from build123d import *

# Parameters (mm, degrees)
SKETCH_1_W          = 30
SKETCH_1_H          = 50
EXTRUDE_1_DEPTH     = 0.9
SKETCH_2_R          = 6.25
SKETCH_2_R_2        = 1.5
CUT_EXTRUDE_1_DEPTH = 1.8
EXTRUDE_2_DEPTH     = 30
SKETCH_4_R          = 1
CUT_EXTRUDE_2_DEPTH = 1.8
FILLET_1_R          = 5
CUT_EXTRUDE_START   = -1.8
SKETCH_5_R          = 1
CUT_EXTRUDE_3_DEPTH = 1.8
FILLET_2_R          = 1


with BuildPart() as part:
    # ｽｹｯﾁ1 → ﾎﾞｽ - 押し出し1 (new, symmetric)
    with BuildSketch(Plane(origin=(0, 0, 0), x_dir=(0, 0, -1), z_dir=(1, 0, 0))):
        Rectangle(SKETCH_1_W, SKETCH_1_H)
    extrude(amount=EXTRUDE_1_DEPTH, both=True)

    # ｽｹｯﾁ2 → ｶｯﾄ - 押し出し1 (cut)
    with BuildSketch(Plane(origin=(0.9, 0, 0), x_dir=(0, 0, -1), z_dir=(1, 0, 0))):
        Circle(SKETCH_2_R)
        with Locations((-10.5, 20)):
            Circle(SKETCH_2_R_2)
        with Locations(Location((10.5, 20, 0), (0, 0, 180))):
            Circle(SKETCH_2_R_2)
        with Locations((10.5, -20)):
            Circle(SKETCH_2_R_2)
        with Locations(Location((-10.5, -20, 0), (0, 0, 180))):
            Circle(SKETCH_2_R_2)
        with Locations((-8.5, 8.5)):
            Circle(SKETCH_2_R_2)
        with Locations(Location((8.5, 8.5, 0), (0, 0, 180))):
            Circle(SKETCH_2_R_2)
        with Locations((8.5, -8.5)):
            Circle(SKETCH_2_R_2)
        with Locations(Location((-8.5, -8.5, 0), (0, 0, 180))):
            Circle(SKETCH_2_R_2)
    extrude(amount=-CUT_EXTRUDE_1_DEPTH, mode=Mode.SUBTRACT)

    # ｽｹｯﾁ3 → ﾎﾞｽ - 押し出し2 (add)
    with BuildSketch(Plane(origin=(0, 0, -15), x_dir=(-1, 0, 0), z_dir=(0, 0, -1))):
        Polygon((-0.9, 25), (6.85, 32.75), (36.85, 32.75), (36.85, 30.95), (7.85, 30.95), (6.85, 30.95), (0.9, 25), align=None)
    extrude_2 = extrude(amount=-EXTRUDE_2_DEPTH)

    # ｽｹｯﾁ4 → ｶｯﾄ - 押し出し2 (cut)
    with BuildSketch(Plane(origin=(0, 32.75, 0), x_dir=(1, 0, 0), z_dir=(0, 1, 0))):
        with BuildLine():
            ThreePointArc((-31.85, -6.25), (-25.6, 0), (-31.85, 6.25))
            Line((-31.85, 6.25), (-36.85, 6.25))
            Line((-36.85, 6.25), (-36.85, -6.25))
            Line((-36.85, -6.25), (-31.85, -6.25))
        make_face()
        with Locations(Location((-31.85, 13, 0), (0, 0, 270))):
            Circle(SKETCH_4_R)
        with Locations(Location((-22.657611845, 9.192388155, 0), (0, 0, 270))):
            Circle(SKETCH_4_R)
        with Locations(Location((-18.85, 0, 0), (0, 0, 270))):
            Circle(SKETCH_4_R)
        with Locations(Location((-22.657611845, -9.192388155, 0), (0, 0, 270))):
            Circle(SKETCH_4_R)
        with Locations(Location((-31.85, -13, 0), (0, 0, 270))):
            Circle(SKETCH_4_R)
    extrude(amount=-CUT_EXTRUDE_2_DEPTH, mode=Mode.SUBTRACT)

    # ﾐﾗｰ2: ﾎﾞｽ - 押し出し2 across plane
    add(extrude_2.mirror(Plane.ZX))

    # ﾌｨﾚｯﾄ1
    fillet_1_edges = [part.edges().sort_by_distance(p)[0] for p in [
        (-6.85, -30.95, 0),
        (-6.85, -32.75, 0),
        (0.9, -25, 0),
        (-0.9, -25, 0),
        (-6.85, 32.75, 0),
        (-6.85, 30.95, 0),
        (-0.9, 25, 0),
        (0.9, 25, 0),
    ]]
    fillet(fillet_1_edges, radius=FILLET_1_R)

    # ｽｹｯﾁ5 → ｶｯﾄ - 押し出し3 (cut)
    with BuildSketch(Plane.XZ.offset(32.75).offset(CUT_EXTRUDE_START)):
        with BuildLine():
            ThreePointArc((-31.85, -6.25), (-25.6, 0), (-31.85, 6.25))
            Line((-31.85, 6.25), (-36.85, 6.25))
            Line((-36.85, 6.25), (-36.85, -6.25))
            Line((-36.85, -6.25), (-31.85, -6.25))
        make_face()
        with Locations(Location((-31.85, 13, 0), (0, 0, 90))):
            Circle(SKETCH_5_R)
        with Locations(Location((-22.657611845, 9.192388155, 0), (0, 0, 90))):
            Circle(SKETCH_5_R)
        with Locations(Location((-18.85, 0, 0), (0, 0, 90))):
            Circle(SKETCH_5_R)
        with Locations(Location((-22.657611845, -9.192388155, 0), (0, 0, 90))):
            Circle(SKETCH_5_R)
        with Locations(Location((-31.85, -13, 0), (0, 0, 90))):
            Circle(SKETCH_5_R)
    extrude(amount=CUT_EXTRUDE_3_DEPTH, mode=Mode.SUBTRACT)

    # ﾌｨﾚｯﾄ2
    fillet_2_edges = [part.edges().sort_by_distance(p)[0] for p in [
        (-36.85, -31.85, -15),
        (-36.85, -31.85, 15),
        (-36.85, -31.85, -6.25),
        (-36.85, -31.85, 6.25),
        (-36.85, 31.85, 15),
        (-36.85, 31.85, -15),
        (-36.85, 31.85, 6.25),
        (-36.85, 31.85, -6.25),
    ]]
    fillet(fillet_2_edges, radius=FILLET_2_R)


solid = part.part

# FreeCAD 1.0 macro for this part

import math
import FreeCAD as App
import Part
import Sketcher


def edges_at(feature, points):
    """Names of the edges that pass closest to the given points."""
    edges = feature.Shape.Edges
    near = lambda p: min(range(len(edges)), key=lambda i: edges[i].distToShape(Part.Vertex(*p))[0])
    return sorted({f"Edge{near(p) + 1}" for p in points})

doc = App.newDocument("Part")
body = doc.addObject("PartDesign::Body", "Body")

# Sketch on YZ plane
sketch1 = body.newObject("Sketcher::SketchObject", "Sketch")
sketch1.AttachmentSupport = (doc.getObject("YZ_Plane"), [""])
sketch1.MapMode = "FlatFace"
sketch1.addGeometry([
    Part.LineSegment(App.Vector(25, 15, 0), App.Vector(-25, 15, 0)),
    Part.LineSegment(App.Vector(-25, 15, 0), App.Vector(-25, -15, 0)),
    Part.LineSegment(App.Vector(-25, -15, 0), App.Vector(25, -15, 0)),
    Part.LineSegment(App.Vector(25, -15, 0), App.Vector(25, 15, 0)),
], False)
sketch1.addConstraint([
    Sketcher.Constraint("Coincident", 0, 2, 1, 1),
    Sketcher.Constraint("Coincident", 1, 2, 2, 1),
    Sketcher.Constraint("Coincident", 2, 2, 3, 1),
    Sketcher.Constraint("Coincident", 3, 2, 0, 1),
    Sketcher.Constraint("Horizontal", 0),
    Sketcher.Constraint("Vertical", 1),
    Sketcher.Constraint("Horizontal", 2),
    Sketcher.Constraint("Vertical", 3),
    Sketcher.Constraint("Symmetric", 0, 2, 2, 2, -1, 1),
    Sketcher.Constraint("DistanceX", 0, 2, 0, 1, 50.0),
    Sketcher.Constraint("DistanceY", 1, 2, 1, 1, 30.0),
])
pad1 = body.newObject("PartDesign::Pad", "Pad")
pad1.Profile = sketch1
pad1.Length = 1.8
pad1.Midplane = True

# Sketch on YZ plane
sketch2 = body.newObject("Sketcher::SketchObject", "Sketch001")
sketch2.AttachmentSupport = (doc.getObject("YZ_Plane"), [""])
sketch2.MapMode = "FlatFace"
sketch2.AttachmentOffset = App.Placement(App.Vector(0, 0, 0.9), App.Rotation())
sketch2.addGeometry([
    Part.Circle(App.Vector(0, 0, 0), App.Vector(0, 0, 1), 6.2),  # 0
    Part.Circle(App.Vector(20, 10.5, 0), App.Vector(0, 0, 1), 1.5),  # 1
    Part.Circle(App.Vector(20, -10.5, 0), App.Vector(0, 0, 1), 1.5),  # 2
    Part.Circle(App.Vector(-20, -10.5, 0), App.Vector(0, 0, 1), 1.5),  # 3
    Part.Circle(App.Vector(-20, 10.5, 0), App.Vector(0, 0, 1), 1.5),  # 4
    Part.Circle(App.Vector(8.5, 8.5, 0), App.Vector(0, 0, 1), 1.5),  # 5
    Part.Circle(App.Vector(8.5, -8.5, 0), App.Vector(0, 0, 1), 1.5),  # 6
    Part.Circle(App.Vector(-8.5, -8.5, 0), App.Vector(0, 0, 1), 1.5),  # 7
    Part.Circle(App.Vector(-8.5, 8.5, 0), App.Vector(0, 0, 1), 1.5),  # 8
], False)
sketch2.addConstraint([
    Sketcher.Constraint("Coincident", 0, 3, -1, 1),
    Sketcher.Constraint("Equal", 1, 2),
    Sketcher.Constraint("Equal", 2, 3),
    Sketcher.Constraint("Equal", 3, 4),
    Sketcher.Constraint("Equal", 4, 5),
    Sketcher.Constraint("Equal", 5, 6),
    Sketcher.Constraint("Equal", 6, 7),
    Sketcher.Constraint("Equal", 7, 8),
    Sketcher.Constraint("Symmetric", 1, 3, 3, 3, -1, 1),
    Sketcher.Constraint("Symmetric", 2, 3, 4, 3, -1, 1),
    Sketcher.Constraint("Symmetric", 5, 3, 7, 3, -1, 1),
    Sketcher.Constraint("Symmetric", 6, 3, 8, 3, -1, 1),
    Sketcher.Constraint("Symmetric", 2, 3, 3, 3, -2),
    Sketcher.Constraint("Symmetric", 6, 3, 7, 3, -2),
    Sketcher.Constraint("Diameter", 1, 3.0),
    Sketcher.Constraint("Diameter", 0, 12.5),
    Sketcher.Constraint("DistanceX", -1, 1, 1, 3, 20.0),
    Sketcher.Constraint("DistanceY", 2, 3, 1, 3, 21.0),
    Sketcher.Constraint("DistanceY", 5, 3, 1, 3, 2.0),
    Sketcher.Constraint("DistanceX", 7, 3, 6, 3, 17.0),
])
pocket1 = body.newObject("PartDesign::Pocket", "Pocket")
pocket1.Profile = sketch2
pocket1.Length = 1.8

# Sketch on XY plane
sketch3 = body.newObject("Sketcher::SketchObject", "Sketch002")
sketch3.AttachmentSupport = (doc.getObject("XY_Plane"), [""])
sketch3.MapMode = "FlatFace"
sketch3.AttachmentOffset = App.Placement(App.Vector(0, 0, -15), App.Rotation())
sketch3.addGeometry([
    Part.LineSegment(App.Vector(-6.8, 32.8, 0), App.Vector(0.9, 25, 0)),  # 0
    Part.LineSegment(App.Vector(0.9, 25, 0), App.Vector(-0.9, 25, 0)),  # 1
    Part.LineSegment(App.Vector(-0.9, 25, 0), App.Vector(-6.8, 30.9, 0)),  # 2
    Part.LineSegment(App.Vector(-6.8, 30.9, 0), App.Vector(-36.9, 30.9, 0)),  # 3
    Part.LineSegment(App.Vector(-36.9, 30.9, 0), App.Vector(-36.9, 32.8, 0)),  # 4
    Part.LineSegment(App.Vector(-36.9, 32.8, 0), App.Vector(-6.8, 32.8, 0)),  # 5
], False)
sketch3.addConstraint([
    Sketcher.Constraint("Coincident", 0, 2, 1, 1),
    Sketcher.Constraint("Coincident", 1, 2, 2, 1),
    Sketcher.Constraint("Coincident", 2, 2, 3, 1),
    Sketcher.Constraint("Coincident", 3, 2, 4, 1),
    Sketcher.Constraint("Coincident", 4, 2, 5, 1),
    Sketcher.Constraint("Coincident", 5, 2, 0, 1),
    Sketcher.Constraint("Horizontal", 1),
    Sketcher.Constraint("Horizontal", 3),
    Sketcher.Constraint("Vertical", 4),
    Sketcher.Constraint("Horizontal", 5),
    Sketcher.Constraint("Parallel", 0, 2),
    Sketcher.Constraint("Vertical", 2, 2, 5, 2),
    Sketcher.Constraint("Equal", 1, 4),
    Sketcher.Constraint("DistanceX", 3, 2, 3, 1, 30.0),
    Sketcher.Constraint("DistanceX", 1, 2, 1, 1, 1.8),
    Sketcher.Constraint("DistanceY", -1, 1, 0, 2, 25.0),
    Sketcher.Constraint("DistanceX", -1, 1, 0, 2, 0.9),
    Sketcher.Constraint("DistanceX", 2, 2, -1, 1, 6.85),
])
pad2 = body.newObject("PartDesign::Pad", "Pad001")
pad2.Profile = sketch3
pad2.Length = 30

# Sketch on XZ plane
sketch4 = body.newObject("Sketcher::SketchObject", "Sketch003")
sketch4.AttachmentSupport = (doc.getObject("XZ_Plane"), [""])
sketch4.MapMode = "FlatFace"
sketch4.AttachmentOffset = App.Placement(App.Vector(0, 0, -32.75), App.Rotation())
sketch4.addGeometry([
    Part.ArcOfCircle(Part.Circle(App.Vector(-31.9, 0, 0), App.Vector(0, 0, 1), 6.2), math.radians(-90), math.radians(90)),  # 0
    Part.LineSegment(App.Vector(-31.9, -6.2, 0), App.Vector(-36.9, -6.2, 0)),  # 1
    Part.LineSegment(App.Vector(-36.9, -6.2, 0), App.Vector(-36.9, 6.2, 0)),  # 2
    Part.LineSegment(App.Vector(-36.9, 6.2, 0), App.Vector(-31.9, 6.2, 0)),  # 3
    Part.Circle(App.Vector(-31.9, -13, 0), App.Vector(0, 0, 1), 1),  # 4
    Part.Circle(App.Vector(-22.7, -9.2, 0), App.Vector(0, 0, 1), 1),  # 5
    Part.Circle(App.Vector(-18.9, 0, 0), App.Vector(0, 0, 1), 1),  # 6
    Part.Circle(App.Vector(-22.7, 9.2, 0), App.Vector(0, 0, 1), 1),  # 7
    Part.Circle(App.Vector(-31.9, 13, 0), App.Vector(0, 0, 1), 1),  # 8
], False)
sketch4.addConstraint([
    Sketcher.Constraint("Tangent", 0, 1, 1, 1),
    Sketcher.Constraint("Coincident", 1, 2, 2, 1),
    Sketcher.Constraint("Coincident", 2, 2, 3, 1),
    Sketcher.Constraint("Tangent", 3, 2, 0, 2),
    Sketcher.Constraint("Horizontal", 1),
    Sketcher.Constraint("Vertical", 2),
    Sketcher.Constraint("Horizontal", 3),
    Sketcher.Constraint("Equal", 4, 5),
    Sketcher.Constraint("Equal", 5, 6),
    Sketcher.Constraint("Equal", 6, 7),
    Sketcher.Constraint("Equal", 7, 8),
    Sketcher.Constraint("Symmetric", 5, 3, 7, 3, -1),
    Sketcher.Constraint("Symmetric", 4, 3, 8, 3, -1),
    Sketcher.Constraint("PointOnObject", 0, 3, -1),
    Sketcher.Constraint("PointOnObject", 6, 3, -1),
    Sketcher.Constraint("Vertical", 0, 3, 4, 3),
    Sketcher.Constraint("Diameter", 4, 2.0),
    Sketcher.Constraint("DistanceX", 1, 2, 1, 1, 5.0),
    Sketcher.Constraint("Radius", 0, 6.25),
    Sketcher.Constraint("DistanceY", 4, 3, -1, 1, 13.0),
    Sketcher.Constraint("DistanceX", 0, 3, 6, 3, 13.0),
    Sketcher.Constraint("DistanceX", 0, 3, -1, 1, 31.85),
    Sketcher.Constraint("DistanceX", 5, 3, -1, 1, 22.657612),
    Sketcher.Constraint("DistanceY", 5, 3, -1, 1, 9.192388),
])
pocket2 = body.newObject("PartDesign::Pocket", "Pocket001")
pocket2.Profile = sketch4
pocket2.Length = 1.8
pocket2.Reversed = True
doc.recompute()

mirrored = body.newObject("PartDesign::Mirrored", "Mirrored")
mirrored.Originals = [pad2]
mirrored.MirrorPlane = (doc.getObject("XZ_Plane"), [""])
body.Tip = mirrored
doc.recompute()

fillet = body.newObject("PartDesign::Fillet", "Fillet")
fillet.Base = (mirrored, edges_at(mirrored, [
    (-6.85, -30.95, 0),
    (-6.85, -32.75, 0),
    (0.9, -25, 0),
    (-0.9, -25, 0),
    (-6.85, 32.75, 0),
    (-6.85, 30.95, 0),
    (-0.9, 25, 0),
    (0.9, 25, 0),
]))
fillet.Radius = 5

# Sketch on XZ plane
sketch5 = body.newObject("Sketcher::SketchObject", "Sketch004")
sketch5.AttachmentSupport = (doc.getObject("XZ_Plane"), [""])
sketch5.MapMode = "FlatFace"
sketch5.AttachmentOffset = App.Placement(App.Vector(0, 0, 30.95), App.Rotation())
sketch5.addGeometry([
    Part.ArcOfCircle(Part.Circle(App.Vector(-31.9, 0, 0), App.Vector(0, 0, 1), 6.2), math.radians(-90), math.radians(90)),  # 0
    Part.LineSegment(App.Vector(-31.9, 6.2, 0), App.Vector(-36.9, 6.2, 0)),  # 1
    Part.LineSegment(App.Vector(-36.9, 6.2, 0), App.Vector(-36.9, -6.2, 0)),  # 2
    Part.LineSegment(App.Vector(-36.9, -6.2, 0), App.Vector(-31.9, -6.2, 0)),  # 3
    Part.Circle(App.Vector(-31.9, 13, 0), App.Vector(0, 0, 1), 1),  # 4
    Part.Circle(App.Vector(-22.7, 9.2, 0), App.Vector(0, 0, 1), 1),  # 5
    Part.Circle(App.Vector(-18.9, 0, 0), App.Vector(0, 0, 1), 1),  # 6
    Part.Circle(App.Vector(-22.7, -9.2, 0), App.Vector(0, 0, 1), 1),  # 7
    Part.Circle(App.Vector(-31.9, -13, 0), App.Vector(0, 0, 1), 1),  # 8
], False)
sketch5.addConstraint([
    Sketcher.Constraint("Tangent", 0, 2, 1, 1),
    Sketcher.Constraint("Coincident", 1, 2, 2, 1),
    Sketcher.Constraint("Coincident", 2, 2, 3, 1),
    Sketcher.Constraint("Tangent", 3, 2, 0, 1),
    Sketcher.Constraint("Horizontal", 1),
    Sketcher.Constraint("Vertical", 2),
    Sketcher.Constraint("Horizontal", 3),
    Sketcher.Constraint("Equal", 4, 5),
    Sketcher.Constraint("Equal", 5, 6),
    Sketcher.Constraint("Equal", 6, 7),
    Sketcher.Constraint("Equal", 7, 8),
    Sketcher.Constraint("Symmetric", 5, 3, 7, 3, -1),
    Sketcher.Constraint("Symmetric", 4, 3, 8, 3, -1),
    Sketcher.Constraint("PointOnObject", 0, 3, -1),
    Sketcher.Constraint("PointOnObject", 6, 3, -1),
    Sketcher.Constraint("Vertical", 0, 3, 4, 3),
    Sketcher.Constraint("Diameter", 4, 2.0),
    Sketcher.Constraint("DistanceX", 1, 2, 1, 1, 5.0),
    Sketcher.Constraint("Radius", 0, 6.25),
    Sketcher.Constraint("DistanceY", -1, 1, 4, 3, 13.0),
    Sketcher.Constraint("DistanceX", 0, 3, 6, 3, 13.0),
    Sketcher.Constraint("DistanceX", 0, 3, -1, 1, 31.85),
    Sketcher.Constraint("DistanceX", 5, 3, -1, 1, 22.657612),
    Sketcher.Constraint("DistanceY", -1, 1, 5, 3, 9.192388),
])
pocket3 = body.newObject("PartDesign::Pocket", "Pocket002")
pocket3.Profile = sketch5
pocket3.Length = 1.8
pocket3.Reversed = True
doc.recompute()

fillet2 = body.newObject("PartDesign::Fillet", "Fillet001")
fillet2.Base = (pocket3, edges_at(pocket3, [
    (-36.85, -31.85, -15),
    (-36.85, -31.85, 15),
    (-36.85, -31.85, -6.25),
    (-36.85, -31.85, 6.25),
    (-36.85, 31.85, 15),
    (-36.85, 31.85, -15),
    (-36.85, 31.85, 6.25),
    (-36.85, 31.85, -6.25),
]))
fillet2.Radius = 1

doc.recompute()
